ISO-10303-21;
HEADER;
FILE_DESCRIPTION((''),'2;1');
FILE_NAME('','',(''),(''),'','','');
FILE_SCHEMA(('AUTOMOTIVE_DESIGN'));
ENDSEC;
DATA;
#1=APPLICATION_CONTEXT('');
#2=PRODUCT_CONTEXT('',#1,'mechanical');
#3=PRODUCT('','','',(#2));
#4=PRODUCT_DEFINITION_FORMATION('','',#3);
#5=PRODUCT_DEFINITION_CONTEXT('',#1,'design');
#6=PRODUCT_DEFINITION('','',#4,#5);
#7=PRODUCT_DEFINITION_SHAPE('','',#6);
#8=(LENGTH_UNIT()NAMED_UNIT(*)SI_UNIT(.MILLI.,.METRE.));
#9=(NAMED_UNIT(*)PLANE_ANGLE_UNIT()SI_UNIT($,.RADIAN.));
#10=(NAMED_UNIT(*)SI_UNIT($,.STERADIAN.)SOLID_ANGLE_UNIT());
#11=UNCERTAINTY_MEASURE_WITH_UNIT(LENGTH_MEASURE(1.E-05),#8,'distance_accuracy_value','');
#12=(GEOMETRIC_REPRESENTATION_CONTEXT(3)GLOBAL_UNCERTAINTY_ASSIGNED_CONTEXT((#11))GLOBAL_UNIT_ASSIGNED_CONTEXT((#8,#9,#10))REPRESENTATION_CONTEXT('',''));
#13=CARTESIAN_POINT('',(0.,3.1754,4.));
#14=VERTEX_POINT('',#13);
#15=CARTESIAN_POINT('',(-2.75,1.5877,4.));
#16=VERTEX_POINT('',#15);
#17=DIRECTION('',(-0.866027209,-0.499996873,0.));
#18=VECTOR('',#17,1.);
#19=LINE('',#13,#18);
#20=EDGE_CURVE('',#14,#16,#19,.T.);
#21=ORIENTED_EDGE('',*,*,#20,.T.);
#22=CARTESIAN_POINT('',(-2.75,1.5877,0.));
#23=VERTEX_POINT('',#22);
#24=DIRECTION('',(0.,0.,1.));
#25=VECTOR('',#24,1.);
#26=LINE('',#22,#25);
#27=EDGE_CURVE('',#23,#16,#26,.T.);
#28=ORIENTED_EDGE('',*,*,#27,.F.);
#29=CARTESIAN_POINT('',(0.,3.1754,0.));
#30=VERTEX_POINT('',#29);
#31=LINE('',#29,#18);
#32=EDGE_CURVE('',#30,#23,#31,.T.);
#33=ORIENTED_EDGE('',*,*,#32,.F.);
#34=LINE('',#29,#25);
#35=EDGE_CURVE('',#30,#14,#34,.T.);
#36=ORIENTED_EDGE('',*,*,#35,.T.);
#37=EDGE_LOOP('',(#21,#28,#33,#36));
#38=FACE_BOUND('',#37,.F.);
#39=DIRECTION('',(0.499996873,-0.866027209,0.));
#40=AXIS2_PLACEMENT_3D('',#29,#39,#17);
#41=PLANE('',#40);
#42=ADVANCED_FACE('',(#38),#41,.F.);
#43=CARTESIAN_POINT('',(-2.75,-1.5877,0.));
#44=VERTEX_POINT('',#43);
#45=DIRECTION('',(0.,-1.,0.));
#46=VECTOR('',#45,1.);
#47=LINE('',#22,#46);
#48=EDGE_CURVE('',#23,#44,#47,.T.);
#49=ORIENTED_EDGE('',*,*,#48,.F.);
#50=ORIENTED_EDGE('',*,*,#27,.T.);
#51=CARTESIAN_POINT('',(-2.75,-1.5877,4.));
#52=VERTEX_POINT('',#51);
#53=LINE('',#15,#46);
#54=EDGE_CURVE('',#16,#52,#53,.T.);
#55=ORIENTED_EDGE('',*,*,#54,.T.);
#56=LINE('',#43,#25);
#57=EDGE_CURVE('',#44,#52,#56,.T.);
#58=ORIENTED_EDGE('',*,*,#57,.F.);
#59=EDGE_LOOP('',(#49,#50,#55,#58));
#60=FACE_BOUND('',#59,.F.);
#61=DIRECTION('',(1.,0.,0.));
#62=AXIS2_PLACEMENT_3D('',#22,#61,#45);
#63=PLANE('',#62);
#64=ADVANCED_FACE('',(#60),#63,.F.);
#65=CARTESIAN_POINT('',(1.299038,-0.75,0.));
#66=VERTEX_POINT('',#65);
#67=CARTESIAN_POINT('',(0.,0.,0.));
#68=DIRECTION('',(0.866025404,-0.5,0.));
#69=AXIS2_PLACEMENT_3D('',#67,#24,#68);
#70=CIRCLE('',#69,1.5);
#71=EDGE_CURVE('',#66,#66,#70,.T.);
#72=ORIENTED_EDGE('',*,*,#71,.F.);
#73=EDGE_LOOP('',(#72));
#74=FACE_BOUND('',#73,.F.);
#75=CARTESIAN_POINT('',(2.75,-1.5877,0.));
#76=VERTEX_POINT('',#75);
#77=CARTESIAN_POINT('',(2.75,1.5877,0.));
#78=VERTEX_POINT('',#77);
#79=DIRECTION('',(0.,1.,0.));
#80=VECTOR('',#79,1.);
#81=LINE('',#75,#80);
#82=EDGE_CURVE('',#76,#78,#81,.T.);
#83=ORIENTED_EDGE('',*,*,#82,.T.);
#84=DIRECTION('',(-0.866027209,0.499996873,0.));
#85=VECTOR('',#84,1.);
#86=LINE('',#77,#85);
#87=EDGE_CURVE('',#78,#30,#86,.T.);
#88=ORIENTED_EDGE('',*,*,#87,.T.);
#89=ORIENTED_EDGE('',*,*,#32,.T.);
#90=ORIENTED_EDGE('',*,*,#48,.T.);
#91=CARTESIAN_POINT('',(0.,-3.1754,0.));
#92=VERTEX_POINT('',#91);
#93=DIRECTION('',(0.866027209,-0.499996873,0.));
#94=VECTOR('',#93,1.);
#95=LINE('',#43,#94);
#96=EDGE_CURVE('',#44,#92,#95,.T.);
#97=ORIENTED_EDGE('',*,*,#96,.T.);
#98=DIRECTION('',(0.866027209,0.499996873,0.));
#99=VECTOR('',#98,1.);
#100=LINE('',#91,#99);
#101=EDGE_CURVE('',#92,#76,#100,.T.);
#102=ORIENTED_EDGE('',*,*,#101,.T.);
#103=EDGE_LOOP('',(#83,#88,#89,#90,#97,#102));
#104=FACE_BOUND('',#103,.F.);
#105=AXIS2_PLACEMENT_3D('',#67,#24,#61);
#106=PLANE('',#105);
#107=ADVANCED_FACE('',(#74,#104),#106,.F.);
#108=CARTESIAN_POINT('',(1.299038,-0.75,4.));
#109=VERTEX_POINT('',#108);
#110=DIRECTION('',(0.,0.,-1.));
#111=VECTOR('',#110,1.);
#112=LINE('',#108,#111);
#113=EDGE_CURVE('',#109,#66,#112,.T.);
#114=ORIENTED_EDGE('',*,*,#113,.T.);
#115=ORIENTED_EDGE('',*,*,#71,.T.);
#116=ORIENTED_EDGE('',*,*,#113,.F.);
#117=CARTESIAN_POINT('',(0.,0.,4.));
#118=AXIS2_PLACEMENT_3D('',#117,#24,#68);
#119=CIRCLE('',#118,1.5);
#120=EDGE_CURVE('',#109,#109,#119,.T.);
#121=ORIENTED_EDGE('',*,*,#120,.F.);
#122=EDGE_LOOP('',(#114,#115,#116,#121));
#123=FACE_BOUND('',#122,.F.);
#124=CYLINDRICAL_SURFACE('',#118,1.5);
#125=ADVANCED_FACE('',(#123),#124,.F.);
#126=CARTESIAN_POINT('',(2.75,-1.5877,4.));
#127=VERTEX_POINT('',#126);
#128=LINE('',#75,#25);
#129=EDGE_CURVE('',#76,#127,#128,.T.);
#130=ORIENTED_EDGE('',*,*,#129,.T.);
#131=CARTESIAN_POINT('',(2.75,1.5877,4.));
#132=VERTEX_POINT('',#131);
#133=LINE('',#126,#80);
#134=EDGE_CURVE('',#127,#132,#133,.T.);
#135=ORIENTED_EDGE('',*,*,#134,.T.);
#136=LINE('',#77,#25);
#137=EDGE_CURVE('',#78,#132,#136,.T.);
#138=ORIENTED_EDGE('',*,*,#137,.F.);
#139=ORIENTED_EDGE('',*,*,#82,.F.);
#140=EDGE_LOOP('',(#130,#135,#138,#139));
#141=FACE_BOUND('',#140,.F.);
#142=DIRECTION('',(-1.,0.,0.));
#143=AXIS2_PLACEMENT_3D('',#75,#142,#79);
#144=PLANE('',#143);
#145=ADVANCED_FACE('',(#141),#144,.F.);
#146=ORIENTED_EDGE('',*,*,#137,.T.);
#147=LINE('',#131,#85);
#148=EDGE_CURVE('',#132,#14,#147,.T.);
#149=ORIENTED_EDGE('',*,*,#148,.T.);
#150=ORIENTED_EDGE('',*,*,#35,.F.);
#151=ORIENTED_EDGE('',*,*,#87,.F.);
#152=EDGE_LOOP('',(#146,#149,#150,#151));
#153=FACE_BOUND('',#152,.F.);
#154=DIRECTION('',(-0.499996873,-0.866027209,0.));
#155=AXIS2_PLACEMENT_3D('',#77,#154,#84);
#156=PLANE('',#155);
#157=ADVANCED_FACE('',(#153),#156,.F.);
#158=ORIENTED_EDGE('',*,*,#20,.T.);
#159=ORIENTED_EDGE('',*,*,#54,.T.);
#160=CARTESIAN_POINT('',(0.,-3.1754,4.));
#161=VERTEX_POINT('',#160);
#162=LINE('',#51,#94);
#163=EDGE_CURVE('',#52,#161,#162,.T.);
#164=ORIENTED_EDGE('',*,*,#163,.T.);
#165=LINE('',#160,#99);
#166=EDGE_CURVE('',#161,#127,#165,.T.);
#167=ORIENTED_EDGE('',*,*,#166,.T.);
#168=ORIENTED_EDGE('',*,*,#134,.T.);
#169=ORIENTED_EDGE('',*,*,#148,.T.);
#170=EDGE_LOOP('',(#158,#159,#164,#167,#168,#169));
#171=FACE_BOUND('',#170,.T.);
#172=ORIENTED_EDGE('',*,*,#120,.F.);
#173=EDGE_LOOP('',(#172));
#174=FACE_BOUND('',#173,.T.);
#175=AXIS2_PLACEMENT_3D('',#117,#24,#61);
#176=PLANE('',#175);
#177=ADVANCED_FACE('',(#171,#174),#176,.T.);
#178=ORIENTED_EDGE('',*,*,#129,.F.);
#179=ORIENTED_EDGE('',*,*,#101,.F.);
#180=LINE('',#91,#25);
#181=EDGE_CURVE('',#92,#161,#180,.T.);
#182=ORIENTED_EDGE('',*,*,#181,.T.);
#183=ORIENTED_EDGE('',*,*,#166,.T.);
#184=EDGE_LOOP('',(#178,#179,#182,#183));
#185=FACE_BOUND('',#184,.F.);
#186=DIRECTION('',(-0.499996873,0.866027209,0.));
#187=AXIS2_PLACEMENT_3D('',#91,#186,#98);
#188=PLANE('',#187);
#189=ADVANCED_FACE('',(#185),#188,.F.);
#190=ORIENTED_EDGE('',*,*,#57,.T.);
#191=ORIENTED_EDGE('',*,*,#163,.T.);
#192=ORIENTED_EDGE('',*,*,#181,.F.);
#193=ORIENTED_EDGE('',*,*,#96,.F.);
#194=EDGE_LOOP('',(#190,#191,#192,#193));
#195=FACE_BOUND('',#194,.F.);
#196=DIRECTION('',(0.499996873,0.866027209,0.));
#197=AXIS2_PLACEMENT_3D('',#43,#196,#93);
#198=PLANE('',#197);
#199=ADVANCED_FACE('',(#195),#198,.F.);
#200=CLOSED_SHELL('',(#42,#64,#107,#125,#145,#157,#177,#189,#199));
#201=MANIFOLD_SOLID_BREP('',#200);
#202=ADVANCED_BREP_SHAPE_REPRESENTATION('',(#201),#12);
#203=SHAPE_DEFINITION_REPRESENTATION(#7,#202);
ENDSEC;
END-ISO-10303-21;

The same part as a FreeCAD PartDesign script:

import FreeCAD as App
import Part
import Sketcher
Q = App.Units.Quantity

doc = App.newDocument("Part")
params = doc.addObject("Spreadsheet::Sheet", "Params")
for row, (alias, value) in enumerate([
    ("pad1_length", "4 mm"),
    ("sketch2_diameter", "3 mm"),
], start=1):
    params.set(f"A{row}", alias)
    params.set(f"B{row}", "=" + value)
    params.setAlias(f"B{row}", alias)

body = doc.addObject("PartDesign::Body", "Body")

sketch1 = body.newObject("Sketcher::SketchObject", "Sketch")
sketch1.AttachmentSupport = (doc.getObject("XY_Plane"), [""])
sketch1.MapMode = "FlatFace"
sketch1.addGeometry([
    Part.LineSegment(App.Vector(2.8, -1.6, 0), App.Vector(2.8, 1.6, 0)),
    Part.LineSegment(App.Vector(2.8, 1.6, 0), App.Vector(0, 3.2, 0)),
    Part.LineSegment(App.Vector(0, 3.2, 0), App.Vector(-2.8, 1.6, 0)),
    Part.LineSegment(App.Vector(-2.8, 1.6, 0), App.Vector(-2.8, -1.6, 0)),
    Part.LineSegment(App.Vector(-2.8, -1.6, 0), App.Vector(0, -3.2, 0)),
    Part.LineSegment(App.Vector(0, -3.2, 0), App.Vector(2.8, -1.6, 0)),
], False)
sketch1.addConstraint([
    Sketcher.Constraint("Coincident", 0, 2, 1, 1),
    Sketcher.Constraint("Coincident", 1, 2, 2, 1),
    Sketcher.Constraint("Coincident", 2, 2, 3, 1),
    Sketcher.Constraint("Coincident", 3, 2, 4, 1),
    Sketcher.Constraint("Coincident", 4, 2, 5, 1),
    Sketcher.Constraint("Coincident", 5, 2, 0, 1),
    Sketcher.Constraint("Vertical", 0),
    Sketcher.Constraint("Vertical", 3),
    Sketcher.Constraint("Symmetric", 0, 2, 3, 2, -1, 1),
    Sketcher.Constraint("Symmetric", 1, 2, 4, 2, -1, 1),
    Sketcher.Constraint("PointOnObject", 1, 2, -2),
    Sketcher.Constraint("Parallel", 2, 5),
    Sketcher.Constraint("Horizontal", 0, 2, 2, 2),
    Sketcher.Constraint("Angle", 1, Q("150.0002 deg")),
    Sketcher.Constraint("DistanceX", 2, 2, 0, 2, 5.5),
    Sketcher.Constraint("DistanceY", 0, 1, 0, 2, 3.1754),
])
pad1 = body.newObject("PartDesign::Pad", "Pad")
pad1.Profile = sketch1
pad1.setExpression("Length", "Params.pad1_length")

sketch2 = body.newObject("Sketcher::SketchObject", "Sketch001")
sketch2.AttachmentSupport = (doc.getObject("XY_Plane"), [""])
sketch2.MapMode = "FlatFace"
sketch2.AttachmentOffset = App.Placement(App.Vector(0, 0, 4), App.Rotation())
sketch2.addGeometry(Part.Circle(App.Vector(0, 0, 0), App.Vector(0, 0, 1), 1.5), False)
sketch2.addConstraint([
    Sketcher.Constraint("Coincident", 0, 3, -1, 1),
    Sketcher.Constraint("Diameter", 0, 3.0),
])
sketch2.setExpression("Constraints[1]", "Params.sketch2_diameter")
pocket1 = body.newObject("PartDesign::Pocket", "Pocket")
pocket1.Profile = sketch2
pocket1.Type = "ThroughAll"

doc.recompute()
